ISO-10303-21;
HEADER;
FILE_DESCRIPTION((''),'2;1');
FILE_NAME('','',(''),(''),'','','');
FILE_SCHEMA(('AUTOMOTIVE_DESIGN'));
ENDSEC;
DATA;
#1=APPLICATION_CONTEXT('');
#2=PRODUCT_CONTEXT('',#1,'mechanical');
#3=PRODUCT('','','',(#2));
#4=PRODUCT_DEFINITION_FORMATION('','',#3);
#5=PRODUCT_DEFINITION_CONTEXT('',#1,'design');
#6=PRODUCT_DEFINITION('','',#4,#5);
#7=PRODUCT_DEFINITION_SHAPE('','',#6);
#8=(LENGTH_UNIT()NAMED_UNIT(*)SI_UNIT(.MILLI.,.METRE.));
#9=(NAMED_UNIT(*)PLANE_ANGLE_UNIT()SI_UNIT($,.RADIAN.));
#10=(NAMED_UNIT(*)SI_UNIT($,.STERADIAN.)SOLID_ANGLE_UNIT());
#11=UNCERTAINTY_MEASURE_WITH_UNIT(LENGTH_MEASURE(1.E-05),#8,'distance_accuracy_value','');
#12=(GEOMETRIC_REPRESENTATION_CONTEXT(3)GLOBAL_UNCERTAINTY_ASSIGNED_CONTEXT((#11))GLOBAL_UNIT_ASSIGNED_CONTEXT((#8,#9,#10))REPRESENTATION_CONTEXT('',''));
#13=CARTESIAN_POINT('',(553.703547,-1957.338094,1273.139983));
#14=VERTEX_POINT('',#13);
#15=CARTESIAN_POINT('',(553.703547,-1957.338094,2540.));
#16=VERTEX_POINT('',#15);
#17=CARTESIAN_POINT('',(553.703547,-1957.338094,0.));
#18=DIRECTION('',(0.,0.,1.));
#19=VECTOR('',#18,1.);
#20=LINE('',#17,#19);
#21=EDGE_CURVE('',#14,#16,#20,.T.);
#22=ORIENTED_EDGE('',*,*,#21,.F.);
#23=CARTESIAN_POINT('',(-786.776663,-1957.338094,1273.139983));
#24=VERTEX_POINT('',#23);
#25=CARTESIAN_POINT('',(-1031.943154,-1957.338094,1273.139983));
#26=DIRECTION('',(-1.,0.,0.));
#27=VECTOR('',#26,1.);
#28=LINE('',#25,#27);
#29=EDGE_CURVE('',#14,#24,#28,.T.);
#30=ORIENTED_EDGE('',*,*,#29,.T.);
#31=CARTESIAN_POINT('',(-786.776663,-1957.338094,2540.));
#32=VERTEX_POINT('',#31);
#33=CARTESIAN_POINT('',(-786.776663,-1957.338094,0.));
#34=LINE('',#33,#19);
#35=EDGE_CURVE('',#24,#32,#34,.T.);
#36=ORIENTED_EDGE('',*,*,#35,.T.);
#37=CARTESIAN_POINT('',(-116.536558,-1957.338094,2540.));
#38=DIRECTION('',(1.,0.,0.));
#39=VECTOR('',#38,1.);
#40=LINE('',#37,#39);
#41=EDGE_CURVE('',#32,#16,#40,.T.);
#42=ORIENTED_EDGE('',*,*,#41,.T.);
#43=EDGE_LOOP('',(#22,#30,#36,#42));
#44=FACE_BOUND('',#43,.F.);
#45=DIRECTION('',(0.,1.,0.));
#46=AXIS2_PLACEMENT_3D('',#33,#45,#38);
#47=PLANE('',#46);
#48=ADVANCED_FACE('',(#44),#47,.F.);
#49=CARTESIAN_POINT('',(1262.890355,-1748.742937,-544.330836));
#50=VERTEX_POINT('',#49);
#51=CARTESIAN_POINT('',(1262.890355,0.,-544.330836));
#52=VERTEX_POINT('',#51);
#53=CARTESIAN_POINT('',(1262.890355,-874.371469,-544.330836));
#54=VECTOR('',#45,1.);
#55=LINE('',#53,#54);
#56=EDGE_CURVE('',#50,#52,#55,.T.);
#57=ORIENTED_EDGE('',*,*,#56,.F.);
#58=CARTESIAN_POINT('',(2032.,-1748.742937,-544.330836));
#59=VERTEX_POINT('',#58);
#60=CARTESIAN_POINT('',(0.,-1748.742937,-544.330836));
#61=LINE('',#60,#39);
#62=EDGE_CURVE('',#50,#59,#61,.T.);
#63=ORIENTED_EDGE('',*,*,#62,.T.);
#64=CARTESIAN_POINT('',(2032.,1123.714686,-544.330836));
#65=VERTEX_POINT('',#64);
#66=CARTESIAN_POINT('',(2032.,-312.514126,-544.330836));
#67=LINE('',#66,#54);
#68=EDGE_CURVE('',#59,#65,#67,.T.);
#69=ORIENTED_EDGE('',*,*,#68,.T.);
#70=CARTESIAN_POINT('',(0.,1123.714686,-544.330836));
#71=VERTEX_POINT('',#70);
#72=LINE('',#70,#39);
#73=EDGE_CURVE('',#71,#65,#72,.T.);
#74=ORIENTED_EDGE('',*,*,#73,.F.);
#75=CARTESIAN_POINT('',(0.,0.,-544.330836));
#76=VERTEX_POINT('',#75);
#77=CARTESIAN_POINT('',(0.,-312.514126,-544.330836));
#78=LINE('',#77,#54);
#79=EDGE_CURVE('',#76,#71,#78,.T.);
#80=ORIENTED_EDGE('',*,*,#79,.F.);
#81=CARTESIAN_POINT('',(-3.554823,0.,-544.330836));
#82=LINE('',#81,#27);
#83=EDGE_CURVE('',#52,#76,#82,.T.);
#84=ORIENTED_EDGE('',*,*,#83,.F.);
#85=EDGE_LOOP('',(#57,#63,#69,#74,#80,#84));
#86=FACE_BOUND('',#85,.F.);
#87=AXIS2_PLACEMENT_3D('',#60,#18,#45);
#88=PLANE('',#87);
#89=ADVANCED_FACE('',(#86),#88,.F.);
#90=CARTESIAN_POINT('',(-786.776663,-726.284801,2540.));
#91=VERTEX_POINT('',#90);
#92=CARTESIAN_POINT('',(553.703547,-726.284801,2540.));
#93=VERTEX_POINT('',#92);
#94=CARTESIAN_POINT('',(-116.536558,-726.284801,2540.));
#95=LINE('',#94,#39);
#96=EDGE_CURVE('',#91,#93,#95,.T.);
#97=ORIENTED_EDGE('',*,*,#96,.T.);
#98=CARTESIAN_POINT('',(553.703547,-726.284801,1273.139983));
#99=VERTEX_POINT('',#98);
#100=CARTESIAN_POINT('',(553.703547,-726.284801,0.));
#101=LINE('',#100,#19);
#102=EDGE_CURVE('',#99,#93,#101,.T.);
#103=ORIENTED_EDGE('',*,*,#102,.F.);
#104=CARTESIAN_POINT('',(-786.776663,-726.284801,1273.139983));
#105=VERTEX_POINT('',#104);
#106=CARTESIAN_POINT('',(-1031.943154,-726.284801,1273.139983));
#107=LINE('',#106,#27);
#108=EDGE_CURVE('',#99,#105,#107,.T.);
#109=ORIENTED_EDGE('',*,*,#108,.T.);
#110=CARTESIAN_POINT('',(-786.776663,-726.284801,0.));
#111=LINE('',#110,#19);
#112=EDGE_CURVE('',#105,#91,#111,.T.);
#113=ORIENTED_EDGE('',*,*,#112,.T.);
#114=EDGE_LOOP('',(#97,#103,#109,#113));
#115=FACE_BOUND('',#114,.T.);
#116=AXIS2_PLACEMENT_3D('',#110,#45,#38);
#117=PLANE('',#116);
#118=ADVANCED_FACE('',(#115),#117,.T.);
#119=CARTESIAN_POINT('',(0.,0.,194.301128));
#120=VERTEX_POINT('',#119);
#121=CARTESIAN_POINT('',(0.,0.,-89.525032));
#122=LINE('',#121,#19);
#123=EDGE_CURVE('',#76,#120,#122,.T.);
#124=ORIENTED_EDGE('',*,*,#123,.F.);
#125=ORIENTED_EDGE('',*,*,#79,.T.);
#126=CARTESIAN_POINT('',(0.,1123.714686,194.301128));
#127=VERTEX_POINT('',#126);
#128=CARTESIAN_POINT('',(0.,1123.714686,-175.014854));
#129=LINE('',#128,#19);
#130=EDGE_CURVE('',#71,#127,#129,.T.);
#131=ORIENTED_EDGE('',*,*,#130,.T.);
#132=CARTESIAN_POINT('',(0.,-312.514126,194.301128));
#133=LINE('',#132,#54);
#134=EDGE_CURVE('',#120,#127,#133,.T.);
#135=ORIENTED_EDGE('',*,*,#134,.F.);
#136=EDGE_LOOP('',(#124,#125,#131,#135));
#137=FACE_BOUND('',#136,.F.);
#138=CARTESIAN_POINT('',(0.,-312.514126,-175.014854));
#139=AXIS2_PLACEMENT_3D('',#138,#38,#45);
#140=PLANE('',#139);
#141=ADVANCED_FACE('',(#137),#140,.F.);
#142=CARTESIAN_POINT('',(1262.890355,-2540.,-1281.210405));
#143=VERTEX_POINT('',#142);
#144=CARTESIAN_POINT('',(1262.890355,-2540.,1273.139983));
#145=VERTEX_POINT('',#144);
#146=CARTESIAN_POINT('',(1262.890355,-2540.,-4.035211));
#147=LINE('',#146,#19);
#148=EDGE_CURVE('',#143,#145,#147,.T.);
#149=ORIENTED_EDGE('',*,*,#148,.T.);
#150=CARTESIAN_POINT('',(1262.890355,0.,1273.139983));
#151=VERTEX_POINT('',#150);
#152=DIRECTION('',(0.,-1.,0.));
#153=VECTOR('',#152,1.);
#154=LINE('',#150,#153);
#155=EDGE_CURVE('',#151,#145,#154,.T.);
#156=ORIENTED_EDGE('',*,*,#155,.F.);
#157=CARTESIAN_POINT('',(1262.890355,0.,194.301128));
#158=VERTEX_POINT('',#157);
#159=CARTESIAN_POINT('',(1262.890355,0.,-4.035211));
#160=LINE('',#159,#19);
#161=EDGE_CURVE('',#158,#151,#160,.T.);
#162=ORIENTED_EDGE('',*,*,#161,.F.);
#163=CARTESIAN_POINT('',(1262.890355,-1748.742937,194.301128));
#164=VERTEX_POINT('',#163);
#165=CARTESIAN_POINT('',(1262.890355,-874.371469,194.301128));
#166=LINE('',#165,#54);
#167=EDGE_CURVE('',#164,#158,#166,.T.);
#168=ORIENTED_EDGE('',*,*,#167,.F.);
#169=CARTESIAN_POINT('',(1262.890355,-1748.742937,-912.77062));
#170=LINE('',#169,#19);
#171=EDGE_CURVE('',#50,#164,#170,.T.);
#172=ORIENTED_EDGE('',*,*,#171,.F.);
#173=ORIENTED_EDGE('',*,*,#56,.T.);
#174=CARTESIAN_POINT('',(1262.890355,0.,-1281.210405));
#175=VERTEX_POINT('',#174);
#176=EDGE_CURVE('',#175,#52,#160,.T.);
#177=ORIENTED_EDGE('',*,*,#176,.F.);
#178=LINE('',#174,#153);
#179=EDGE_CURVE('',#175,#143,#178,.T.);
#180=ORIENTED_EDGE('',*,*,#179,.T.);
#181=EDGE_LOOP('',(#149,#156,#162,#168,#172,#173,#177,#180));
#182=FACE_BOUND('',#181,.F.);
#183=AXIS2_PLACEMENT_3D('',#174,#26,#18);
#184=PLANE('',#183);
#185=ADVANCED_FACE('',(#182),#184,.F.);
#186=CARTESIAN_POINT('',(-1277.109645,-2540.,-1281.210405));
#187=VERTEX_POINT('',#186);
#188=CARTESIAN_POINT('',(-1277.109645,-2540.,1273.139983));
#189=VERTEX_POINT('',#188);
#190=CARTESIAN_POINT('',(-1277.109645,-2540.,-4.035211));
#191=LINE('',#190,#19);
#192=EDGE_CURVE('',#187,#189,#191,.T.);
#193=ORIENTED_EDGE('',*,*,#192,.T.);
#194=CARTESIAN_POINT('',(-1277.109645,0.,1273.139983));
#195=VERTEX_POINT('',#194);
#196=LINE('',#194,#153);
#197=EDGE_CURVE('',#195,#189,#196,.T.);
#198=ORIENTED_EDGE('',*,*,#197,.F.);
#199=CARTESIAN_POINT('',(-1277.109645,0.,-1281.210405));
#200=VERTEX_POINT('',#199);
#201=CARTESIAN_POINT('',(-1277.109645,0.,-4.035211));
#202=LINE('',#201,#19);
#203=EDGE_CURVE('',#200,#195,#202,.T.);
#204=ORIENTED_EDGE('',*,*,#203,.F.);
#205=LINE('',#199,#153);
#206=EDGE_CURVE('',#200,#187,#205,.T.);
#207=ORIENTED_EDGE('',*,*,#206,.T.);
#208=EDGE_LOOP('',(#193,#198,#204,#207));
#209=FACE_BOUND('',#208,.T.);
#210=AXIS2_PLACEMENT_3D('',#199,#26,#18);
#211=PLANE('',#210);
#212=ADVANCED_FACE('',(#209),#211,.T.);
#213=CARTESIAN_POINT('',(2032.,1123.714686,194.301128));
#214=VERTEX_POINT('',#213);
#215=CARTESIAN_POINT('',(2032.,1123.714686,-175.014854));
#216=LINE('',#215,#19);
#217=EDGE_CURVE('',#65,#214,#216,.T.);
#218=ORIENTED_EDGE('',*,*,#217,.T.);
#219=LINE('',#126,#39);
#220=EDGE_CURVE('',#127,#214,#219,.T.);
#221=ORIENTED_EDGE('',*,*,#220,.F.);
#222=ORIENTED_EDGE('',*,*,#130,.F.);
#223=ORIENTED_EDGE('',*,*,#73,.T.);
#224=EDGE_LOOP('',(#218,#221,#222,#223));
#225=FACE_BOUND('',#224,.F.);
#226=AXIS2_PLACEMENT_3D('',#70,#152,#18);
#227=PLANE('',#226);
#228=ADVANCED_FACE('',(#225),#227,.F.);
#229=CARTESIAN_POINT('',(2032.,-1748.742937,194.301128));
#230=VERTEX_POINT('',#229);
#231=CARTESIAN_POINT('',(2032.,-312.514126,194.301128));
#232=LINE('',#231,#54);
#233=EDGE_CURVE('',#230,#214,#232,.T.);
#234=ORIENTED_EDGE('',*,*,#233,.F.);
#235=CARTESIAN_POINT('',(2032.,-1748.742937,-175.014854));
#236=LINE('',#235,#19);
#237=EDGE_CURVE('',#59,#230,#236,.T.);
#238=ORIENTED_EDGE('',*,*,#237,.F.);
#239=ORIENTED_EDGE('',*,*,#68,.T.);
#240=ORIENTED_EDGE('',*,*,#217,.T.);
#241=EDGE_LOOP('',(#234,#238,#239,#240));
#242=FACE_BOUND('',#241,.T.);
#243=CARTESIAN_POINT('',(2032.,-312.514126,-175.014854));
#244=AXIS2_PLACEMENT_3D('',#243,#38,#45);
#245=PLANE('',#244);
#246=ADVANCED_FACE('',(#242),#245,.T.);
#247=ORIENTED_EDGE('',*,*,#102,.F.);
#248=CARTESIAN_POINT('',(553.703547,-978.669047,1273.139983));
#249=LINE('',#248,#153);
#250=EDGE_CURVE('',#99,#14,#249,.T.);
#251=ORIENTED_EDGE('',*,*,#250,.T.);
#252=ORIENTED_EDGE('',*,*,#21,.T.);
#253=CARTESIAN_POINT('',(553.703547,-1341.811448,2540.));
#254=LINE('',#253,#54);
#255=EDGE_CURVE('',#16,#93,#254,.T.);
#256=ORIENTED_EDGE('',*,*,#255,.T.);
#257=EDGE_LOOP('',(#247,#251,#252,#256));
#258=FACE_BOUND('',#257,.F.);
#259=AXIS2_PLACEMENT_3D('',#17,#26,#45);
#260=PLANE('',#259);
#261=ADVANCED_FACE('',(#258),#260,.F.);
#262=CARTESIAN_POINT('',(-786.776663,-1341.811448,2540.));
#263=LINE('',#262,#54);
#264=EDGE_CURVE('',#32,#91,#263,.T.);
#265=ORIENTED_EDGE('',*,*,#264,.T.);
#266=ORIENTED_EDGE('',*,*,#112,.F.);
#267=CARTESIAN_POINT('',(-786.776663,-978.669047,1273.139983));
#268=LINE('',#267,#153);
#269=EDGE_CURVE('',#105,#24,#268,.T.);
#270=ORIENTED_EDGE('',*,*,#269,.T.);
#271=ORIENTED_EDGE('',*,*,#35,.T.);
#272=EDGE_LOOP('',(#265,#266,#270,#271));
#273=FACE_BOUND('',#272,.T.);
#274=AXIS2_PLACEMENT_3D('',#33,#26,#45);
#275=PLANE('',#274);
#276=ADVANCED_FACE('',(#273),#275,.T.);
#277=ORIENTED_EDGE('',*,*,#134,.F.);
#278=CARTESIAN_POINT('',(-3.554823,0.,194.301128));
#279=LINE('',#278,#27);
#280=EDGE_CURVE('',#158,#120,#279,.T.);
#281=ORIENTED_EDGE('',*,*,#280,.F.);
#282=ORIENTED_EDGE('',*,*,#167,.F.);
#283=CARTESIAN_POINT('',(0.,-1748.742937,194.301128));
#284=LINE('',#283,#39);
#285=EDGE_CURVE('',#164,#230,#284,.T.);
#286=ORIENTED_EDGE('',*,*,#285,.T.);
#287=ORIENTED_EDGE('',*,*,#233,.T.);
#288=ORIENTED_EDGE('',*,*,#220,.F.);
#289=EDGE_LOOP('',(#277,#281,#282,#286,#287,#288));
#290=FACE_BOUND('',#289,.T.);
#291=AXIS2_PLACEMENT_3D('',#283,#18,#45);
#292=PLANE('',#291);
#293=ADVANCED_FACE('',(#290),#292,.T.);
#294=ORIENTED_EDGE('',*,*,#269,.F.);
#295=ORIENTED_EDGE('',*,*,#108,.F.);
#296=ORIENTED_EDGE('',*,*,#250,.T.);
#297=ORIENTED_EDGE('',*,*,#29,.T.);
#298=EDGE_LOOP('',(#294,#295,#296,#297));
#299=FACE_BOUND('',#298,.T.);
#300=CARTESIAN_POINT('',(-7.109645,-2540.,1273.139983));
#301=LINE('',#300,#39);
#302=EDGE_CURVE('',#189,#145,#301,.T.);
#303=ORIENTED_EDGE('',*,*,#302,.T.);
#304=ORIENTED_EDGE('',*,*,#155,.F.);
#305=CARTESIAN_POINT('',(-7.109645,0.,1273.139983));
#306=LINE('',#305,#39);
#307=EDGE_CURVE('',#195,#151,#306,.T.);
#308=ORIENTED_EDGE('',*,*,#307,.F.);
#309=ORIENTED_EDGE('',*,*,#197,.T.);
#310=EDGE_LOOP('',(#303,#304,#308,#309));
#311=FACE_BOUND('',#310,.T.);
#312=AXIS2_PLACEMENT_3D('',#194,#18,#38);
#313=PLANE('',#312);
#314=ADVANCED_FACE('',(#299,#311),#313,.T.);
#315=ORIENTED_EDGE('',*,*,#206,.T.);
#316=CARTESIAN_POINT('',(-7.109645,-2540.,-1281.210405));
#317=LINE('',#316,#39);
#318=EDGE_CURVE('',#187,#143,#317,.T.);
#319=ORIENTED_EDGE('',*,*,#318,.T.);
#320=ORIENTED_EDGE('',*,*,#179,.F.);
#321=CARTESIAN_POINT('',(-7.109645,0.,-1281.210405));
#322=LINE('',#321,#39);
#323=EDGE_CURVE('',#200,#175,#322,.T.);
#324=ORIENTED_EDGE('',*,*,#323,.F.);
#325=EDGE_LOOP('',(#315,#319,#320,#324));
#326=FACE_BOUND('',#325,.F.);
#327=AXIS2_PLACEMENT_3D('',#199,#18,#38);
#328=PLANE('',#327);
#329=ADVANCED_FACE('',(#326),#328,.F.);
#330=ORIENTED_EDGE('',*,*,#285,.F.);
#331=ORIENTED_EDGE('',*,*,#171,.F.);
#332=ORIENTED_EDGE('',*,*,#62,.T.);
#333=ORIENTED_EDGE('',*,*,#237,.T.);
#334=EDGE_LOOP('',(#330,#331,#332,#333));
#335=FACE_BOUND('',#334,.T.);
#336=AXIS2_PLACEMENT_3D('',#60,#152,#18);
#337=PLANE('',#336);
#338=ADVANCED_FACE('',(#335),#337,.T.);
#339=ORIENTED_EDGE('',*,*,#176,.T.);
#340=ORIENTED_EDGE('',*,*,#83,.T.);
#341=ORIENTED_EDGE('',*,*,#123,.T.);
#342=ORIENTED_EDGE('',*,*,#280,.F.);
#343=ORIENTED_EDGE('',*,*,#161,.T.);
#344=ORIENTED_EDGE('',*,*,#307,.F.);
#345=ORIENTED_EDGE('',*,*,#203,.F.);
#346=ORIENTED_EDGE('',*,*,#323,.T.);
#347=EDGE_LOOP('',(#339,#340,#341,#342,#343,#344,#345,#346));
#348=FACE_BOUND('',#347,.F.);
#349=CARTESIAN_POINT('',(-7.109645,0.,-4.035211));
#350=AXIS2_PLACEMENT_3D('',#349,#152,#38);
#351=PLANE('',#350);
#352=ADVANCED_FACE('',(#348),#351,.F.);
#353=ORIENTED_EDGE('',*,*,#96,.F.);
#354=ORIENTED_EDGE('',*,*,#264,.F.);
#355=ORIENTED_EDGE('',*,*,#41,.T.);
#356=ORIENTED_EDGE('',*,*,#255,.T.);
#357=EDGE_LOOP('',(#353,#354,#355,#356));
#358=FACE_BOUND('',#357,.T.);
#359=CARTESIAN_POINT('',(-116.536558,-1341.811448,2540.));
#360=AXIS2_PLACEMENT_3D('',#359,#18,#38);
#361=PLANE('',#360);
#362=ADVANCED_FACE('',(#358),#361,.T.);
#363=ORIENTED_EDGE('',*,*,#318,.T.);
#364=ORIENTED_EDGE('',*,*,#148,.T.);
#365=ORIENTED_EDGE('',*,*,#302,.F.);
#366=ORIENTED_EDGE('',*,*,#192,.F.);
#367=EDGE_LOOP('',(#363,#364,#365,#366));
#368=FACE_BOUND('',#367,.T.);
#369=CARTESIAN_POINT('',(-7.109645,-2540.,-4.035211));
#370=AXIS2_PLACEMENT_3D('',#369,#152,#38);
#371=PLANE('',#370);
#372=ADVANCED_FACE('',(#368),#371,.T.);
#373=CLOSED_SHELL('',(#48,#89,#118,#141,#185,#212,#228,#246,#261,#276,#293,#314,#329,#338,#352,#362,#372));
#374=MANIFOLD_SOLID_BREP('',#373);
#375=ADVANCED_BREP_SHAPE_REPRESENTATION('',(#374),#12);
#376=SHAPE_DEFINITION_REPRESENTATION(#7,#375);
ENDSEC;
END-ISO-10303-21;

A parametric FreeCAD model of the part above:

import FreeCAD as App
import Part
import Sketcher

V = App.Vector
Q = App.Units.Quantity


def add_polygon(sketch, points):
    """Adds a closed chain of lines whose ends are joined by coincident constraints."""
    first, n = sketch.GeometryCount, len(points)
    for a, b in zip(points, points[1:] + points[:1]):
        sketch.addGeometry(Part.LineSegment(App.Vector(*a, 0), App.Vector(*b, 0)), False)
    for i in range(n):
        sketch.addConstraint(Sketcher.Constraint("Coincident", first + i, 2, first + (i + 1) % n, 1))

doc = App.newDocument("Part")
body = doc.addObject("PartDesign::Body", "Body")

# Sketch on XZ plane
sketch1 = body.newObject("Sketcher::SketchObject", "Sketch")
sketch1.AttachmentSupport = (doc.getObject("XZ_Plane"), [""])
sketch1.MapMode = "FlatFace"
add_polygon(sketch1, [(-1277, 1273), (-1277, -1281), (1263, -1281), (1263, 1273)])  # lines 0-3
sketch1.addConstraint([
    Sketcher.Constraint("Vertical", 0),
    Sketcher.Constraint("Horizontal", 1),
    Sketcher.Constraint("Vertical", 2),
    Sketcher.Constraint("Horizontal", 3),
    Sketcher.Constraint("DistanceX", 1, 1, 1, 2, Q("100 in")),
    Sketcher.Constraint("DistanceY", 0, 2, 0, 1, Q("2554.350389 mm")),
    Sketcher.Constraint("DistanceX", 0, 2, -1, 1, Q("1277.109645 mm")),
    Sketcher.Constraint("DistanceY", 0, 2, -1, 1, Q("1281.210405 mm")),
])
pad1 = body.newObject("PartDesign::Pad", "Pad")
pad1.Profile = sketch1
pad1.Length = Q("100 in")

# Sketch on XY plane
sketch2 = body.newObject("Sketcher::SketchObject", "Sketch001")
sketch2.AttachmentSupport = (doc.getObject("XY_Plane"), [""])
sketch2.MapMode = "FlatFace"
add_polygon(sketch2, [(-787, -726), (-787, -1957), (554, -1957), (554, -726)])  # lines 0-3
sketch2.addConstraint([
    Sketcher.Constraint("Vertical", 0),
    Sketcher.Constraint("Horizontal", 1),
    Sketcher.Constraint("Vertical", 2),
    Sketcher.Constraint("Horizontal", 3),
    Sketcher.Constraint("DistanceX", 1, 1, 1, 2, Q("1340.480209 mm")),
    Sketcher.Constraint("DistanceY", 2, 2, -1, 1, Q("726.284801 mm")),
    Sketcher.Constraint("DistanceY", 0, 2, 0, 1, Q("1231.053293 mm")),
    Sketcher.Constraint("DistanceX", 0, 2, -1, 1, Q("786.776663 mm")),
])
pad2 = body.newObject("PartDesign::Pad", "Pad001")
pad2.Profile = sketch2
pad2.Length = Q("100 in")

# Sketch on YZ plane
sketch3 = body.newObject("Sketcher::SketchObject", "Sketch002")
sketch3.AttachmentSupport = (doc.getObject("YZ_Plane"), [""])
sketch3.MapMode = "FlatFace"
add_polygon(sketch3, [(-1749, 194), (-1749, -544), (1124, -544), (1124, 194)])  # lines 0-3
sketch3.addConstraint([
    Sketcher.Constraint("Vertical", 0),
    Sketcher.Constraint("Horizontal", 1),
    Sketcher.Constraint("Vertical", 2),
    Sketcher.Constraint("Horizontal", 3),
    Sketcher.Constraint("DistanceX", 1, 1, 1, 2, Q("2872.457623 mm")),
    Sketcher.Constraint("DistanceY", 0, 2, 0, 1, Q("738.631963 mm")),
    Sketcher.Constraint("DistanceX", 0, 2, -1, 1, Q("1748.742937 mm")),
    Sketcher.Constraint("DistanceY", 0, 2, -1, 1, Q("544.330836 mm")),
])
pad3 = body.newObject("PartDesign::Pad", "Pad002")
pad3.Profile = sketch3
pad3.Length = Q("80 in")

doc.recompute()
